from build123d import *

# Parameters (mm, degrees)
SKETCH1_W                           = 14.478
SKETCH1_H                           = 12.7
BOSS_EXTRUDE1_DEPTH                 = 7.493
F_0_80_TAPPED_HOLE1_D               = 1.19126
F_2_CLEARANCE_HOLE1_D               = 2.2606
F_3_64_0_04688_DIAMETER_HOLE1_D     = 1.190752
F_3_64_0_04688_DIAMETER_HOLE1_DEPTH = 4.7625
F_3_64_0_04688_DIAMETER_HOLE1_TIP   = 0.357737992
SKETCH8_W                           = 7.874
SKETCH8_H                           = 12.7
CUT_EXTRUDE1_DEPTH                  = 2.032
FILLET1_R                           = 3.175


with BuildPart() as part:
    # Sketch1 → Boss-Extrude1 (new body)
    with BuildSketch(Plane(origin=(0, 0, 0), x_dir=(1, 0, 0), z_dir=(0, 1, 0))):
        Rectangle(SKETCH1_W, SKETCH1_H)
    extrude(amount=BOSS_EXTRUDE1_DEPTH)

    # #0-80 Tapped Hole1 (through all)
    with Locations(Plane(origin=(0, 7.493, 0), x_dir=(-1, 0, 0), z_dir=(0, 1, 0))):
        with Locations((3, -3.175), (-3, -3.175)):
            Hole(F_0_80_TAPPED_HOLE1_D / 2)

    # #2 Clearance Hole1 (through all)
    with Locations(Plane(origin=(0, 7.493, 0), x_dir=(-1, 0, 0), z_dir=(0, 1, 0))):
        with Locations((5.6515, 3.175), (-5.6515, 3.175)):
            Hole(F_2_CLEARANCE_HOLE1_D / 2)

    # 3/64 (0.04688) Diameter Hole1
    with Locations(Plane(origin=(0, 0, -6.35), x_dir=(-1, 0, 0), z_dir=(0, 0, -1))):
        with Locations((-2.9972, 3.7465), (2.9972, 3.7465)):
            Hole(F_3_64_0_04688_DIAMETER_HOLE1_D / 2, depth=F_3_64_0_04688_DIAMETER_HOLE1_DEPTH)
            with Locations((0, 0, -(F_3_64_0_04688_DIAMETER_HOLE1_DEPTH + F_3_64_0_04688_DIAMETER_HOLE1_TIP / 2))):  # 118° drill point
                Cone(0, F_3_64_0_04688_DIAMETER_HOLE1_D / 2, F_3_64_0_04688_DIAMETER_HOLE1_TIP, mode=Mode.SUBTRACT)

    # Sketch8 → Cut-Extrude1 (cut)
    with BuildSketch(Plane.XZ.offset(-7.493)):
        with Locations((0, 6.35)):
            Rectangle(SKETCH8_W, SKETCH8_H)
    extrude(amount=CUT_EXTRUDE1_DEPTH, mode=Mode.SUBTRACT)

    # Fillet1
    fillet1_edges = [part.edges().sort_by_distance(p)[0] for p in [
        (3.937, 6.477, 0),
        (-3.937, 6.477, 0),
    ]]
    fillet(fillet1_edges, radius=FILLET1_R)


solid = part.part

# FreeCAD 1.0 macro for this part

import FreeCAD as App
import Part
import Sketcher
from FreeCAD import Vector
Q = App.Units.Quantity


def edges_at(feature, points):
    """Names of the edges that pass closest to the given points."""
    edges = feature.Shape.Edges
    near = lambda p: min(range(len(edges)), key=lambda i: edges[i].distToShape(Part.Vertex(*p))[0])
    return sorted({f"Edge{near(p) + 1}" for p in points})


def add_polygon(sketch, points):
    """Adds a closed chain of lines whose ends are joined by coincident constraints."""
    first, n = sketch.GeometryCount, len(points)
    for a, b in zip(points, points[1:] + points[:1]):
        sketch.addGeometry(Part.LineSegment(App.Vector(*a, 0), App.Vector(*b, 0)), False)
    for i in range(n):
        sketch.addConstraint(Sketcher.Constraint("Coincident", first + i, 2, first + (i + 1) % n, 1))

doc = App.newDocument("Part")
body = doc.addObject("PartDesign::Body", "Body")

sketch1 = doc.addObject("Sketcher::SketchObject", "Sketch")
body.addObject(sketch1)
sketch1.AttachmentSupport = (doc.XZ_Plane, [""])
sketch1.MapMode = "FlatFace"
add_polygon(sketch1, [(-7, -6), (-7, 6), (7, 6), (7, -6)])
sketch1.addConstraint(Sketcher.Constraint("Vertical", 0))
sketch1.addConstraint(Sketcher.Constraint("Horizontal", 1))
sketch1.addConstraint(Sketcher.Constraint("Vertical", 2))
sketch1.addConstraint(Sketcher.Constraint("Horizontal", 3))
sketch1.addConstraint(Sketcher.Constraint("Symmetric", 0, 2, 2, 2, -1, 1))
sketch1.addConstraint(Sketcher.Constraint("DistanceY", 0, 1, 0, 2, Q("0.5 in")))
sketch1.addConstraint(Sketcher.Constraint("DistanceX", 1, 1, 1, 2, Q("0.57 in")))
pad1 = doc.addObject("PartDesign::Pad", "Pad")
body.addObject(pad1)
pad1.Profile = sketch1
pad1.Length = Q("0.295 in")
pad1.Reversed = True

sketch2 = doc.addObject("Sketcher::SketchObject", "Sketch001")
body.addObject(sketch2)
sketch2.AttachmentSupport = (doc.XZ_Plane, [""])
sketch2.MapMode = "FlatFace"
sketch2.AttachmentOffset = App.Placement(Vector(0, 0, -0.295 * 25.4), App.Rotation())
sketch2.addGeometry(Part.Circle(Vector(-3, -3.2, 0), Vector(0, 0, 1), 0.6), False)
sketch2.addGeometry(Part.Circle(Vector(3, -3.2, 0), Vector(0, 0, 1), 0.6), False)
sketch2.addConstraint(Sketcher.Constraint("Equal", 0, 1))
sketch2.addConstraint(Sketcher.Constraint("Symmetric", 0, 3, 1, 3, -2))
sketch2.addConstraint(Sketcher.Constraint("Diameter", 0, Q("0.0469 in")))
sketch2.addConstraint(Sketcher.Constraint("DistanceY", 0, 3, -1, 1, Q("0.125 in")))
sketch2.addConstraint(Sketcher.Constraint("DistanceX", 0, 3, -1, 1, 3.0))
doc.recompute()
hole = doc.addObject("PartDesign::Hole", "Hole")
body.addObject(hole)
hole.Profile = sketch2
hole.ThreadType = "None"
hole.Diameter = Q("0.0469 in")
hole.DepthType = "ThroughAll"
hole.Reversed = True

sketch3 = doc.addObject("Sketcher::SketchObject", "Sketch002")
body.addObject(sketch3)
sketch3.AttachmentSupport = (doc.XZ_Plane, [""])
sketch3.MapMode = "FlatFace"
sketch3.AttachmentOffset = App.Placement(Vector(0, 0, -0.295 * 25.4), App.Rotation())
sketch3.addGeometry(Part.Circle(Vector(-5.7, 3.2, 0), Vector(0, 0, 1), 1.1), False)
sketch3.addGeometry(Part.Circle(Vector(5.7, 3.2, 0), Vector(0, 0, 1), 1.1), False)
sketch3.addConstraint(Sketcher.Constraint("Equal", 0, 1))
sketch3.addConstraint(Sketcher.Constraint("Symmetric", 0, 3, 1, 3, -2))
sketch3.addConstraint(Sketcher.Constraint("Diameter", 0, Q("0.089 in")))
sketch3.addConstraint(Sketcher.Constraint("DistanceY", -1, 1, 0, 3, Q("0.125 in")))
sketch3.addConstraint(Sketcher.Constraint("DistanceX", 0, 3, 1, 3, Q("0.445 in")))
doc.recompute()
hole2 = doc.addObject("PartDesign::Hole", "Hole001")
body.addObject(hole2)
hole2.Profile = sketch3
hole2.ThreadType = "None"
hole2.Diameter = Q("0.089 in")
hole2.DepthType = "ThroughAll"
hole2.Reversed = True

sketch4 = doc.addObject("Sketcher::SketchObject", "Sketch003")
body.addObject(sketch4)
sketch4.AttachmentSupport = (doc.XY_Plane, [""])
sketch4.MapMode = "FlatFace"
sketch4.AttachmentOffset = App.Placement(Vector(0, 0, -0.25 * 25.4), App.Rotation())
sketch4.addGeometry(Part.Circle(Vector(3, 3.7, 0), Vector(0, 0, 1), 0.6), False)
sketch4.addGeometry(Part.Circle(Vector(-3, 3.7, 0), Vector(0, 0, 1), 0.6), False)
sketch4.addConstraint(Sketcher.Constraint("Equal", 0, 1))
sketch4.addConstraint(Sketcher.Constraint("Symmetric", 0, 3, 1, 3, -2))
sketch4.addConstraint(Sketcher.Constraint("DistanceX", -1, 1, 0, 3, Q("0.118 in")))
sketch4.addConstraint(Sketcher.Constraint("Diameter", 0, 1.190752))
sketch4.addConstraint(Sketcher.Constraint("DistanceY", -1, 1, 0, 3, Q("0.1475 in")))
doc.recompute()
hole3 = doc.addObject("PartDesign::Hole", "Hole002")
body.addObject(hole3)
hole3.Profile = sketch4
hole3.ThreadType = "None"
hole3.Diameter = 1.190752
hole3.DepthType = "Dimension"
hole3.Depth = Q("0.1875 in")
hole3.DrillPoint = "Angled"
hole3.DrillPointAngle = 118
hole3.Reversed = True

sketch5 = doc.addObject("Sketcher::SketchObject", "Sketch004")
body.addObject(sketch5)
sketch5.AttachmentSupport = (doc.XZ_Plane, [""])
sketch5.MapMode = "FlatFace"
sketch5.AttachmentOffset = App.Placement(Vector(0, 0, -0.295 * 25.4), App.Rotation())
add_polygon(sketch5, [(-4, 13), (-4, 0), (4, 0), (4, 13)])
sketch5.addConstraint(Sketcher.Constraint("Vertical", 0))
sketch5.addConstraint(Sketcher.Constraint("Horizontal", 1))
sketch5.addConstraint(Sketcher.Constraint("Vertical", 2))
sketch5.addConstraint(Sketcher.Constraint("Horizontal", 3))
sketch5.addConstraint(Sketcher.Constraint("Symmetric", 0, 2, 1, 2, -1, 1))
sketch5.addConstraint(Sketcher.Constraint("DistanceY", 0, 2, 0, 1, Q("0.5 in")))
sketch5.addConstraint(Sketcher.Constraint("DistanceX", 1, 1, 1, 2, Q("0.31 in")))
pocket1 = doc.addObject("PartDesign::Pocket", "Pocket")
body.addObject(pocket1)
pocket1.Profile = sketch5
pocket1.Length = Q("0.08 in")
pocket1.Reversed = True
doc.recompute()

fillet = doc.addObject("PartDesign::Fillet", "Fillet")
body.addObject(fillet)
fillet.Base = (pocket1, edges_at(pocket1, [(3.937, 6.477, 0), (-3.937, 6.477, 0)]))
fillet.Radius = Q("0.125 in")

doc.recompute()
